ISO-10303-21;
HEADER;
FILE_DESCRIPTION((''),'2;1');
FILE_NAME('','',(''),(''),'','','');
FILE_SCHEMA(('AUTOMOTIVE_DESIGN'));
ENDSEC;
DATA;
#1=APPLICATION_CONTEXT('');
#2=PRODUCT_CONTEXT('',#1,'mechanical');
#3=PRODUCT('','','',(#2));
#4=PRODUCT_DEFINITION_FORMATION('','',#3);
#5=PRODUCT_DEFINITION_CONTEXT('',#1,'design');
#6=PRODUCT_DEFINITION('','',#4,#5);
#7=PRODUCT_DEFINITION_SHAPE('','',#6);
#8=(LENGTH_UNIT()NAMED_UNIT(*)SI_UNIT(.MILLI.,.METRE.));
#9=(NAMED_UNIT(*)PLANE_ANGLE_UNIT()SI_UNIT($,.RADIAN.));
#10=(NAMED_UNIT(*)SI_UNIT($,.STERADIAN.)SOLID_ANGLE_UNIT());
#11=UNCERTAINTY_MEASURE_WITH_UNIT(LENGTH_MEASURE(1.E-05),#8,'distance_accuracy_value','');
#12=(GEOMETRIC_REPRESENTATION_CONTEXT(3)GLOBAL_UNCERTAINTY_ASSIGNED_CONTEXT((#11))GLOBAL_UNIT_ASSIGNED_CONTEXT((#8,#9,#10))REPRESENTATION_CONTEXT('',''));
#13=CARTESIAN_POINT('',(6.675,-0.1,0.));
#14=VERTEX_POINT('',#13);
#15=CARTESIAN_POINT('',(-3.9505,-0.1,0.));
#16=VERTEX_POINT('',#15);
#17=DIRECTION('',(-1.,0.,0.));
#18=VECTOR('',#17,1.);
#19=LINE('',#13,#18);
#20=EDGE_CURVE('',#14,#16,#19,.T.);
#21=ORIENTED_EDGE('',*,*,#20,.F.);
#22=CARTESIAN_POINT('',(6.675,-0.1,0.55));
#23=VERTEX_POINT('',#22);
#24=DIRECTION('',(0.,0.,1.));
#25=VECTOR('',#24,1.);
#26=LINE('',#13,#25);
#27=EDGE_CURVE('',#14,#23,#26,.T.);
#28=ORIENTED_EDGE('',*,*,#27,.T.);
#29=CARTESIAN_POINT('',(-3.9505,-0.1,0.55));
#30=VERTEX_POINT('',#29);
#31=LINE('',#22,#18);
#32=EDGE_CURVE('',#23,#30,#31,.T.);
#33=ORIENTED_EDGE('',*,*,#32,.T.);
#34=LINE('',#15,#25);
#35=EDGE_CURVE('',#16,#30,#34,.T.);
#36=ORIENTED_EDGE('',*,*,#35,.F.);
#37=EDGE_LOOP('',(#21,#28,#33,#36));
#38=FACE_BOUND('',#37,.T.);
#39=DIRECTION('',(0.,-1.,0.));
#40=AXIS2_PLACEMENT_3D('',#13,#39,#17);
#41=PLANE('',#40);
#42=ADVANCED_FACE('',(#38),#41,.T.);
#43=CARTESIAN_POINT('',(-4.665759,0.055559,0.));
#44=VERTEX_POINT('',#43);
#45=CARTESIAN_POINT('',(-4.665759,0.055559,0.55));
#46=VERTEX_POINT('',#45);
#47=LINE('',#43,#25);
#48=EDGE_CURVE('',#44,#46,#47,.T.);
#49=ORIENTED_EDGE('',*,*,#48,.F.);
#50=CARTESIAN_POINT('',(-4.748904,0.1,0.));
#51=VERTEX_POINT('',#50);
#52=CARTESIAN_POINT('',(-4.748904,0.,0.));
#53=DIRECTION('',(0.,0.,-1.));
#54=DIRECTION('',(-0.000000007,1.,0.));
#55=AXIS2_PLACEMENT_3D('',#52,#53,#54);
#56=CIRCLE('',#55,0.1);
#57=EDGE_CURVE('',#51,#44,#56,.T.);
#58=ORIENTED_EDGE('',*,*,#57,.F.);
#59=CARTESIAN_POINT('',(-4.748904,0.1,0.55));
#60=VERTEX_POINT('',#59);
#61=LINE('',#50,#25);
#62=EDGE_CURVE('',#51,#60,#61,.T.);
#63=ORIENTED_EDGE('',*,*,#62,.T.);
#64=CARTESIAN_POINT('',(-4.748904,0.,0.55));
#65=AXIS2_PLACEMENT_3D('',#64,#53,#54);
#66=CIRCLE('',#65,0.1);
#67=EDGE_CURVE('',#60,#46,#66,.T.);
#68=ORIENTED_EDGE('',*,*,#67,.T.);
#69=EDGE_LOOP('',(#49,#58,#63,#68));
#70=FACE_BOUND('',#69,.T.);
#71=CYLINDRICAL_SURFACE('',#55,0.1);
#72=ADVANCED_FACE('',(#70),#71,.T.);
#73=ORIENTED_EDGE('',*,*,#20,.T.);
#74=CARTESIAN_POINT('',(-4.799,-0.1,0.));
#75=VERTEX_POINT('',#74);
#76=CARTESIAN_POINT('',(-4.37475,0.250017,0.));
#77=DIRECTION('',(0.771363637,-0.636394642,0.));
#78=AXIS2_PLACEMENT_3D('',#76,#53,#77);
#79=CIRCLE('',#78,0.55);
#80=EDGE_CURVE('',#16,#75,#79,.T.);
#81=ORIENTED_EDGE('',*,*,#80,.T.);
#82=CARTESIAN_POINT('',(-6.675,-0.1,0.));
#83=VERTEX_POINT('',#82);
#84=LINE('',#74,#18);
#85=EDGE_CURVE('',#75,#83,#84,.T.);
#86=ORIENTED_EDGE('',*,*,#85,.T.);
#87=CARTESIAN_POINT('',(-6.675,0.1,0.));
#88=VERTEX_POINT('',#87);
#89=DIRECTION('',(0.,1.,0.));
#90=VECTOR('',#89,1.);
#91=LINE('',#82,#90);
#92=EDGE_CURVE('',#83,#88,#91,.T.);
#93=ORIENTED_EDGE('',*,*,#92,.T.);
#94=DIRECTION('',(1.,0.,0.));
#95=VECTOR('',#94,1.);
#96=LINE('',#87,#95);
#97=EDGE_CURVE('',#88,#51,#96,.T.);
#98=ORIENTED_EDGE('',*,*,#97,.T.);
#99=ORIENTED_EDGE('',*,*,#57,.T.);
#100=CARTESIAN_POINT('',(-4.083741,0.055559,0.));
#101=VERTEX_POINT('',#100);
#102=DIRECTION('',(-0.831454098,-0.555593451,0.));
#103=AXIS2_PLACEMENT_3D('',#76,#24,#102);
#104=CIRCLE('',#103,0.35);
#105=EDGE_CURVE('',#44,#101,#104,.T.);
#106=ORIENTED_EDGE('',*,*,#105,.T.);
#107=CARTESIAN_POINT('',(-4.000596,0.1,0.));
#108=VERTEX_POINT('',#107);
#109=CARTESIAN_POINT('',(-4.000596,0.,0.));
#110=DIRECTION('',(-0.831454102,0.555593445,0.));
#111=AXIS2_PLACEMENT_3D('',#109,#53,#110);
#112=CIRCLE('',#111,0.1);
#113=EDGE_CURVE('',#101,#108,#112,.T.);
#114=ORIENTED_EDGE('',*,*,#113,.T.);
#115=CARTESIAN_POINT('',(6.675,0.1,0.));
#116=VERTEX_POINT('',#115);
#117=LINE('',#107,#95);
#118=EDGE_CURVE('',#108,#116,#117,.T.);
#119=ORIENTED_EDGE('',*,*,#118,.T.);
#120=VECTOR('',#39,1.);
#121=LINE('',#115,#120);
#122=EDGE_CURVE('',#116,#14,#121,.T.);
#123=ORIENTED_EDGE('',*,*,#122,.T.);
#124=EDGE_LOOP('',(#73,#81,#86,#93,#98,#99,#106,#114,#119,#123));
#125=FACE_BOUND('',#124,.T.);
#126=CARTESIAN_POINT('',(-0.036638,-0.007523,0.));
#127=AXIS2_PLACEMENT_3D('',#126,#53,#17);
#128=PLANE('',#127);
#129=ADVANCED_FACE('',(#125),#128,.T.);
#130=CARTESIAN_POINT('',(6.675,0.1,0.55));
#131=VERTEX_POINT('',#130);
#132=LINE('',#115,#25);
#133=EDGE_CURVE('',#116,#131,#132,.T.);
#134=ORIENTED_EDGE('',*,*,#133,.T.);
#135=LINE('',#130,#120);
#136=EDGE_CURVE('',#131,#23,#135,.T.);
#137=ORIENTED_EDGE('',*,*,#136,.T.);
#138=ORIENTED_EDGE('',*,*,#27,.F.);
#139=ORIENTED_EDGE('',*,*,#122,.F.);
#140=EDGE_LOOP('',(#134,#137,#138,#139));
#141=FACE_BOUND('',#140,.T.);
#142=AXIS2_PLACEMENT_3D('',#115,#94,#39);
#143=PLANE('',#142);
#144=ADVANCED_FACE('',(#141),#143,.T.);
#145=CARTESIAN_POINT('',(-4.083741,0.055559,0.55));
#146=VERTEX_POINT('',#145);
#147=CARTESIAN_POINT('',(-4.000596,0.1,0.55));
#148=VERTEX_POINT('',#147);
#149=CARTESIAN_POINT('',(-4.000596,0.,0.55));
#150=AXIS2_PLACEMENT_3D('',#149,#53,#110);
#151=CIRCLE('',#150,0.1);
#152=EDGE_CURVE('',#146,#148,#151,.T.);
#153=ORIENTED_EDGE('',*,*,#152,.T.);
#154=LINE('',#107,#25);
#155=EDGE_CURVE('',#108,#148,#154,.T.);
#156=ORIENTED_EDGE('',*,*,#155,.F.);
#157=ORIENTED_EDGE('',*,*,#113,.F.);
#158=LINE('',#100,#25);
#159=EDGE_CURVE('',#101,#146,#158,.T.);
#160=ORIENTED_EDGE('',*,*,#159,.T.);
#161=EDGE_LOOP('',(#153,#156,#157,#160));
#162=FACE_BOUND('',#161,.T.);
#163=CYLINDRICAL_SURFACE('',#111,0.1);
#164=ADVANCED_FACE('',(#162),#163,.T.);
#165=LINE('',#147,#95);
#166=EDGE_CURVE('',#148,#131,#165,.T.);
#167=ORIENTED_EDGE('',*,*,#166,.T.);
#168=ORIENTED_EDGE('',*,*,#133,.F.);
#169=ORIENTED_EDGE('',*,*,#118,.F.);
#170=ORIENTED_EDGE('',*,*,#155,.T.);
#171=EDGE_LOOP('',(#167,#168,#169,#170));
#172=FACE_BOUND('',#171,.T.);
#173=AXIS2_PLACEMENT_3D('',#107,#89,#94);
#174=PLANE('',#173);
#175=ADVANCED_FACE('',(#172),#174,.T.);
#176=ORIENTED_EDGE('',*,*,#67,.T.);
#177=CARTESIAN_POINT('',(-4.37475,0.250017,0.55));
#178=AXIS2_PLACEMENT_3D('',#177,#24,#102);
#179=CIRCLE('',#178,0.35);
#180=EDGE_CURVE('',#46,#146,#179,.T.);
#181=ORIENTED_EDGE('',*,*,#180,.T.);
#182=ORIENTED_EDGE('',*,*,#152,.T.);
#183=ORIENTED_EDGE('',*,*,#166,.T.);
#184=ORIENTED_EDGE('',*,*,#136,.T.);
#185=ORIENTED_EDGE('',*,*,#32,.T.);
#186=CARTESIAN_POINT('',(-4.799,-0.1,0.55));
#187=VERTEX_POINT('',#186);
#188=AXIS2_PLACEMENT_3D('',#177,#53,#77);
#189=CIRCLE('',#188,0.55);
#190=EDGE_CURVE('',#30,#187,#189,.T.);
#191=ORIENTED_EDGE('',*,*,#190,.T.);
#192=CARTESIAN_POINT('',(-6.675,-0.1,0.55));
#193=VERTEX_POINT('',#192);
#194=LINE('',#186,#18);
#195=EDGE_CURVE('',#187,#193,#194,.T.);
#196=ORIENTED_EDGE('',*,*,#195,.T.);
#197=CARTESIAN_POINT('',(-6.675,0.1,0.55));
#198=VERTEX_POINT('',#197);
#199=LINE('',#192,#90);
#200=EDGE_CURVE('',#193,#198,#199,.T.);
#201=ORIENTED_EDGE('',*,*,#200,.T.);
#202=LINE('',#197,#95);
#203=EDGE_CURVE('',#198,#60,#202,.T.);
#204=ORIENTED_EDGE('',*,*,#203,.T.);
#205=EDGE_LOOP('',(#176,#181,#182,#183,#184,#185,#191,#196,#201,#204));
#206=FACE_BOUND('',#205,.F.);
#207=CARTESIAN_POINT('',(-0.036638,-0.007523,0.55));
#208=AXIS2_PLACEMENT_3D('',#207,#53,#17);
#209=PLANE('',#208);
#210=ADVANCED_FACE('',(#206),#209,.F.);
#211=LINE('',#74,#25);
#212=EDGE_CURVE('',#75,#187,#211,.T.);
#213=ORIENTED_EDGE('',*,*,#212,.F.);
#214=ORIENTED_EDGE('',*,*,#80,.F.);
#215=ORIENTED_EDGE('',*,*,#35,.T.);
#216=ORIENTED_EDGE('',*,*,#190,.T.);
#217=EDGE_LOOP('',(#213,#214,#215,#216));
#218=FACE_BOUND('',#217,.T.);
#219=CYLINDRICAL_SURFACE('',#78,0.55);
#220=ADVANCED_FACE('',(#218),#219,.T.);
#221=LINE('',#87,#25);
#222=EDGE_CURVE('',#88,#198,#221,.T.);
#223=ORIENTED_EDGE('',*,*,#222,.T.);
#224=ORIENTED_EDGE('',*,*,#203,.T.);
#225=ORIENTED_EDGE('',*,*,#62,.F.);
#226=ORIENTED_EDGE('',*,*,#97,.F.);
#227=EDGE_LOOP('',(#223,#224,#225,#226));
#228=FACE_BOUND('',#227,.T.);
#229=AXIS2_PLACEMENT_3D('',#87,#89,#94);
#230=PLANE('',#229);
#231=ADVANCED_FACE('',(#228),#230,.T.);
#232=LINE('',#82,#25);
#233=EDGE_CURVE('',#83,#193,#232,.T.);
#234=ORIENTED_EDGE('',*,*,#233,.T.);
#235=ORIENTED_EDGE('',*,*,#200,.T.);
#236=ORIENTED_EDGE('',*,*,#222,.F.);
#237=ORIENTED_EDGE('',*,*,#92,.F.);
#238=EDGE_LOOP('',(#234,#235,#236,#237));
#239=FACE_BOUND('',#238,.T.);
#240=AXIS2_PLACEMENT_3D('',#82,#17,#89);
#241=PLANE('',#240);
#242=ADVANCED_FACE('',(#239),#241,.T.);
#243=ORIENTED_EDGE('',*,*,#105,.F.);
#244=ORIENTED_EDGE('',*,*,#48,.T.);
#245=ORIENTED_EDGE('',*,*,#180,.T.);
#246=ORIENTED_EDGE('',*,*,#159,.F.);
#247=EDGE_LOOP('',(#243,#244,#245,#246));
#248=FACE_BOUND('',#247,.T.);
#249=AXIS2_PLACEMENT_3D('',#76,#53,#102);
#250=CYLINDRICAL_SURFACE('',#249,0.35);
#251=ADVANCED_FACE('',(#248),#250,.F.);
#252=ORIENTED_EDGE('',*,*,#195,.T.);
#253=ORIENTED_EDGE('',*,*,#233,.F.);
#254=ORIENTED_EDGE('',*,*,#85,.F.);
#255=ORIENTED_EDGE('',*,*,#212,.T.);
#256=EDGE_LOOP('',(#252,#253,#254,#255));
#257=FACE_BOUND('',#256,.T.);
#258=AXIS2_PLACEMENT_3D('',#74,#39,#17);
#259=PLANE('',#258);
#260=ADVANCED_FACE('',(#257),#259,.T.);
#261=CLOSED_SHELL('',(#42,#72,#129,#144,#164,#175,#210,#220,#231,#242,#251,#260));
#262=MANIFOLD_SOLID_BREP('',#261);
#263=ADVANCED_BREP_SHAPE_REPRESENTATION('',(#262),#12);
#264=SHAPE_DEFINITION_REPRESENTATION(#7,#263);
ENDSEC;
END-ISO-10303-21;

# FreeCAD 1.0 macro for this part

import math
import FreeCAD as App
import Part
import Sketcher

V = App.Vector
Q = App.Units.Quantity

doc = App.newDocument("Part")
body = doc.addObject("PartDesign::Body", "Body")

sketch1 = doc.addObject("Sketcher::SketchObject", "Sketch")
body.addObject(sketch1)
sketch1.AttachmentSupport = (doc.XY_Plane, [""])
sketch1.MapMode = "FlatFace"
sketch1.addGeometry([
    Part.LineSegment(V(6.67, 0.1, 0), V(-4, 0.1, 0)),
    Part.ArcOfCircle(Part.Circle(V(-4, 0, 0), V(0, 0, 1), 0.1), math.radians(90), math.radians(146)),
    Part.ArcOfCircle(Part.Circle(V(-4.37, 0.25, 0), V(0, 0, 1), 0.35), math.radians(-146), math.radians(-34)),
    Part.ArcOfCircle(Part.Circle(V(-4.75, 0, 0), V(0, 0, 1), 0.1), math.radians(34), math.radians(90)),
    Part.LineSegment(V(-4.75, 0.1, 0), V(-6.67, 0.1, 0)),
    Part.LineSegment(V(-6.67, 0.1, 0), V(-6.67, -0.1, 0)),
    Part.LineSegment(V(-6.67, -0.1, 0), V(-4.8, -0.1, 0)),
    Part.ArcOfCircle(Part.Circle(V(-4.37, 0.25, 0), V(0, 0, 1), 0.55), math.radians(-140), math.radians(-40)),
    Part.LineSegment(V(-3.95, -0.1, 0), V(6.67, -0.1, 0)),
    Part.LineSegment(V(6.67, -0.1, 0), V(6.67, 0.1, 0)),
], False)
sketch1.addConstraint([
    Sketcher.Constraint("Tangent", 0, 2, 1, 1),
    Sketcher.Constraint("Tangent", 1, 2, 2, 2),
    Sketcher.Constraint("Tangent", 2, 1, 3, 1),
    Sketcher.Constraint("Tangent", 3, 2, 4, 1),
    Sketcher.Constraint("Coincident", 4, 2, 5, 1),
    Sketcher.Constraint("Coincident", 5, 2, 6, 1),
    Sketcher.Constraint("Coincident", 6, 2, 7, 1),
    Sketcher.Constraint("Coincident", 7, 2, 8, 1),
    Sketcher.Constraint("Coincident", 8, 2, 9, 1),
    Sketcher.Constraint("Coincident", 9, 2, 0, 1),
    Sketcher.Constraint("Horizontal", 0),
    Sketcher.Constraint("Horizontal", 4),
    Sketcher.Constraint("Vertical", 5),
    Sketcher.Constraint("Horizontal", 6),
    Sketcher.Constraint("Horizontal", 8),
    Sketcher.Constraint("Vertical", 9),
    Sketcher.Constraint("Coincident", 7, 3, 2, 3),
    Sketcher.Constraint("Equal", 1, 3),
    Sketcher.Constraint("Symmetric", 4, 2, 8, 2, -1, 1),
    Sketcher.Constraint("PointOnObject", 1, 3, -1),
    Sketcher.Constraint("PointOnObject", 3, 3, -1),
    Sketcher.Constraint("Horizontal", 6, 2, 7, 2),
    Sketcher.Constraint("Radius", 1, Q("0.1 mm")),
    Sketcher.Constraint("Radius", 2, Q("0.35 mm")),
    Sketcher.Constraint("Radius", 7, Q("0.55 mm")),
    Sketcher.Constraint("DistanceX", 6, 1, 6, 2, Q("1.876 mm")),
    Sketcher.Constraint("DistanceX", 8, 1, 8, 2, Q("10.6255 mm")),
    Sketcher.Constraint("DistanceX", 4, 2, -1, 1, Q("6.675 mm")),
])
pad1 = doc.addObject("PartDesign::Pad", "Pad")
body.addObject(pad1)
pad1.Profile = sketch1
pad1.Length = 0.55

doc.recompute()
